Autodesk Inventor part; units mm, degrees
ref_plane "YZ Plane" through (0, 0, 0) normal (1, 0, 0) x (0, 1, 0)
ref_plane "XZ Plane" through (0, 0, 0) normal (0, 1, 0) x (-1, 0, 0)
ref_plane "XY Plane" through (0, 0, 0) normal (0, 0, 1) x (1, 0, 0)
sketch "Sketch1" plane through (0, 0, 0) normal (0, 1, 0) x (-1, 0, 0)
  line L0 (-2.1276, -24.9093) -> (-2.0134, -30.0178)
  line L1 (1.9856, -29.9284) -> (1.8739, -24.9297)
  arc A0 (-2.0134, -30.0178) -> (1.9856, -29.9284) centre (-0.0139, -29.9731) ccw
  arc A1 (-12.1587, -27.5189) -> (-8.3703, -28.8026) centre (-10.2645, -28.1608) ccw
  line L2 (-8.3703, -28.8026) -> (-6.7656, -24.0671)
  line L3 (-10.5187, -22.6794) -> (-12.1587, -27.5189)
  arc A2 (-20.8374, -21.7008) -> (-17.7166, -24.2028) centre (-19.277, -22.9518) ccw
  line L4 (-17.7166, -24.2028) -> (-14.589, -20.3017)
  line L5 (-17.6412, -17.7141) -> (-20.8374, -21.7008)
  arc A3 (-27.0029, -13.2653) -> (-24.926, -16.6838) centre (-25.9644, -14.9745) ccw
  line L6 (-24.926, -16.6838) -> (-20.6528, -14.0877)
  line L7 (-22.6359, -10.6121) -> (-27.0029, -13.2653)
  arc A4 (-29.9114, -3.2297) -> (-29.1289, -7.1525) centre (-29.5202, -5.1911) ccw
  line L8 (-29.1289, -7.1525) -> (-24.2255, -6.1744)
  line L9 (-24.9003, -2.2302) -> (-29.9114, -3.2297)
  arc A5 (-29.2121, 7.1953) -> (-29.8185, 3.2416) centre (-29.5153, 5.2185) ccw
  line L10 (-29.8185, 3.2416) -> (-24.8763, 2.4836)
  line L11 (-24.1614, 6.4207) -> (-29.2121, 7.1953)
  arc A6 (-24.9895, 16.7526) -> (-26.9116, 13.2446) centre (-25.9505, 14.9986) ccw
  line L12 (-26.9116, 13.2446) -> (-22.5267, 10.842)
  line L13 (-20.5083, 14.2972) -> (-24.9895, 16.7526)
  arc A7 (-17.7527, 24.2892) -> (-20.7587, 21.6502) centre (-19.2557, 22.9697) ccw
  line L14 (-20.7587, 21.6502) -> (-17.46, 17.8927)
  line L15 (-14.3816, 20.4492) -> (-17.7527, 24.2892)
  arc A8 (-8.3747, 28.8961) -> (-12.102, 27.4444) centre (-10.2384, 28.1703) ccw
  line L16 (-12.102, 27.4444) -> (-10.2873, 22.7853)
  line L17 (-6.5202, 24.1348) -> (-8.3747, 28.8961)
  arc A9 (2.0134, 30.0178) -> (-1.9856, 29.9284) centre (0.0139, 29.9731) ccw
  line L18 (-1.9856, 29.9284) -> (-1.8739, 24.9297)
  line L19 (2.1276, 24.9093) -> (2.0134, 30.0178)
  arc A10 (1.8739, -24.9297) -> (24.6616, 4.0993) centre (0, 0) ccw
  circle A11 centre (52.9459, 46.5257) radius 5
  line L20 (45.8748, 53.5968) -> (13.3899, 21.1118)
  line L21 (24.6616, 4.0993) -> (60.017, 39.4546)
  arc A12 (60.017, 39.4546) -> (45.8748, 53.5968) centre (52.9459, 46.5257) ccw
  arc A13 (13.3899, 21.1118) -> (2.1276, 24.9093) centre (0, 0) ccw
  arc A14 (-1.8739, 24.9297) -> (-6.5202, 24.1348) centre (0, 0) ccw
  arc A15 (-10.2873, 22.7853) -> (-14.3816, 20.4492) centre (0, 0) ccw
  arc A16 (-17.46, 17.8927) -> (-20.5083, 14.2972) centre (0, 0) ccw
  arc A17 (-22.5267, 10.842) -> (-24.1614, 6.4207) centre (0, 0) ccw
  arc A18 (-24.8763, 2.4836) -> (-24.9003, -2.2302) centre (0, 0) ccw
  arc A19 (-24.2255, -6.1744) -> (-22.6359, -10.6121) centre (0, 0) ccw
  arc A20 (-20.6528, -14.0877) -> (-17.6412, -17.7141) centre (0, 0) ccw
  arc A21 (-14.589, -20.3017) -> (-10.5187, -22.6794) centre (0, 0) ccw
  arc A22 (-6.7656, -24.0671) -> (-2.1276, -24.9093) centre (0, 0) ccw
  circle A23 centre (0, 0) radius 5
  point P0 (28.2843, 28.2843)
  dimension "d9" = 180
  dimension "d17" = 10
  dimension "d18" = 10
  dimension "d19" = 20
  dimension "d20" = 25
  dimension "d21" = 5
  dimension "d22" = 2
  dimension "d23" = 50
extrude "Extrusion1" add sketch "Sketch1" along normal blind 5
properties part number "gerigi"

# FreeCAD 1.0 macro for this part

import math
import FreeCAD as App
import Part
import Sketcher
from FreeCAD import Vector
Q = App.Units.Quantity

doc = App.newDocument("Part")
body = doc.addObject("PartDesign::Body", "Body")

sketch1 = body.newObject("Sketcher::SketchObject", "Sketch")
sketch1.AttachmentSupport = (doc.getObject("XZ_Plane"), [""])
sketch1.MapMode = "FlatFace"
sketch1.addGeometry([
    Part.ArcOfCircle(Part.Circle(Vector(-0.000638, 0.002765, 0), Vector(0, 0, 1), 25.002808), math.radians(-85.117076), math.radians(-74.298888)),
    Part.LineSegment(Vector(2.1276, -24.9093, 0), Vector(2.0134, -30.0178, 0)),
    Part.ArcOfCircle(Part.Circle(Vector(0.0139, -29.9731, 0), Vector(0, 0, 1), 2), math.radians(178.719332), math.radians(358.719332)),
    Part.LineSegment(Vector(-1.9856, -29.9284, 0), Vector(-1.8739, -24.9297, 0)),
    Part.ArcOfCircle(Part.Circle(Vector(0, 0, 0), Vector(0, 0, 1), 24.99995), math.radians(170.56247), math.radians(265.701311)),
    Part.LineSegment(Vector(-24.6616, 4.0993, 0), Vector(-60.017, 39.4546, 0)),
    Part.ArcOfCircle(Part.Circle(Vector(-52.9459, 46.5257, 0), Vector(0, 0, 1), 10.000046), math.radians(45), math.radians(225)),
    Part.LineSegment(Vector(-45.8748, 53.5968, 0), Vector(-13.3899, 21.1118, 0)),
    Part.ArcOfCircle(Part.Circle(Vector(0, 0, 0), Vector(0, 0, 1), 25.000029), math.radians(94.882006), math.radians(122.384412)),
    Part.LineSegment(Vector(-2.1276, 24.9093, 0), Vector(-2.0134, 30.0178, 0)),
    Part.ArcOfCircle(Part.Circle(Vector(-0.0139, 29.9731, 0), Vector(0, 0, 1), 2), math.radians(-1.280668), math.radians(178.719332)),
    Part.LineSegment(Vector(1.9856, 29.9284, 0), Vector(1.8739, 24.9297, 0)),
    Part.ArcOfCircle(Part.Circle(Vector(0, 0, 0), Vector(0, 0, 1), 25.000029), math.radians(74.882008), math.radians(85.701311)),
    Part.LineSegment(Vector(6.5202, 24.1348, 0), Vector(8.3747, 28.8961, 0)),
    Part.ArcOfCircle(Part.Circle(Vector(10.2384, 28.1703, 0), Vector(0, 0, 1), 2.000041), math.radians(-21.281656), math.radians(158.722053)),
    Part.LineSegment(Vector(12.102, 27.4444, 0), Vector(10.2873, 22.7853, 0)),
    Part.ArcOfCircle(Part.Circle(Vector(-0.001798, -0.003529, 0), Vector(0, 0, 1), 25.003925), math.radians(54.883165), math.radians(65.700945)),
    Part.LineSegment(Vector(14.3816, 20.4492, 0), Vector(17.7527, 24.2892, 0)),
    Part.ArcOfCircle(Part.Circle(Vector(19.2557, 22.9697, 0), Vector(0, 0, 1), 2.000022), math.radians(-41.280248), math.radians(138.719752)),
    Part.LineSegment(Vector(20.7587, 21.6502, 0), Vector(17.46, 17.8927, 0)),
    Part.ArcOfCircle(Part.Circle(Vector(0, 0, 0), Vector(0, 0, 1), 24.999969), math.radians(34.881977), math.radians(45.701238)),
    Part.LineSegment(Vector(20.5083, 14.2972, 0), Vector(24.9895, 16.7526, 0)),
    Part.ArcOfCircle(Part.Circle(Vector(25.9505, 14.9986, 0), Vector(0, 0, 1), 2.000009), math.radians(-61.27957), math.radians(118.717918)),
    Part.LineSegment(Vector(26.9116, 13.2446, 0), Vector(22.5267, 10.842, 0)),
    Part.ArcOfCircle(Part.Circle(Vector(0.005251, 0.002229, 0), Vector(0, 0, 1), 24.994326), math.radians(14.880101), math.radians(25.701921)),
    Part.LineSegment(Vector(24.1614, 6.4207, 0), Vector(29.2121, 7.1953, 0)),
    Part.ArcOfCircle(Part.Circle(Vector(29.5153, 5.2185, 0), Vector(0, 0, 1), 1.999917), math.radians(-81.28041), math.radians(98.720024)),
    Part.LineSegment(Vector(29.8185, 3.2416, 0), Vector(24.8763, 2.4836, 0)),
    Part.ArcOfCircle(Part.Circle(Vector(0, 0, 0), Vector(0, 0, 1), 25.000029), math.radians(-5.118051), math.radians(5.701403)),
    Part.LineSegment(Vector(24.9003, -2.2302, 0), Vector(29.9114, -3.2297, 0)),
    Part.ArcOfCircle(Part.Circle(Vector(29.5202, -5.1911, 0), Vector(0, 0, 1), 2.000032), math.radians(-101.282403), math.radians(78.720406)),
    Part.LineSegment(Vector(29.1289, -7.1525, 0), Vector(24.2255, -6.1744, 0)),
    Part.ArcOfCircle(Part.Circle(Vector(-0.005525, 0.001689, 0), Vector(0, 0, 1), 25.005732), math.radians(-25.116125), math.radians(-14.299287)),
    Part.LineSegment(Vector(22.6359, -10.6121, 0), Vector(27.0029, -13.2653, 0)),
    Part.ArcOfCircle(Part.Circle(Vector(25.9644, -14.9745, 0), Vector(0, 0, 1), 1.999962), math.radians(-121.278687), math.radians(58.717377)),
    Part.LineSegment(Vector(24.926, -16.6838, 0), Vector(20.6528, -14.0877, 0)),
    Part.ArcOfCircle(Part.Circle(Vector(0, 0, 0), Vector(0, 0, 1), 24.99995), math.radians(-45.118139), math.radians(-34.298703)),
    Part.LineSegment(Vector(17.6412, -17.7141, 0), Vector(20.8374, -21.7008, 0)),
    Part.ArcOfCircle(Part.Circle(Vector(19.277, -22.9518, 0), Vector(0, 0, 1), 1.999962), math.radians(-141.280238), math.radians(38.719762)),
    Part.LineSegment(Vector(17.7166, -24.2028, 0), Vector(14.589, -20.3017, 0)),
    Part.ArcOfCircle(Part.Circle(Vector(0, 0, 0), Vector(0, 0, 1), 25.000029), math.radians(-65.118142), math.radians(-54.298607)),
    Part.LineSegment(Vector(10.5187, -22.6794, 0), Vector(12.1587, -27.5189, 0)),
    Part.ArcOfCircle(Part.Circle(Vector(10.2645, -28.1608, 0), Vector(0, 0, 1), 2.000007), math.radians(-161.282398), math.radians(18.720316)),
    Part.LineSegment(Vector(8.3703, -28.8026, 0), Vector(6.7656, -24.0671, 0)),
    Part.Circle(Vector(0, 0, 0), Vector(0, 0, 1), 5),
    Part.Circle(Vector(-52.9459, 46.5257, 0), Vector(0, 0, 1), 5),
], False)
sketch1.addConstraint([
    Sketcher.Constraint("Coincident", 0, 1, 1, 1),
    Sketcher.Constraint("Tangent", 1, 2, 2, 2),
    Sketcher.Constraint("Tangent", 2, 1, 3, 1),
    Sketcher.Constraint("Coincident", 3, 2, 4, 2),
    Sketcher.Constraint("Coincident", 4, 1, 5, 1),
    Sketcher.Constraint("Tangent", 5, 2, 6, 2),
    Sketcher.Constraint("Tangent", 6, 1, 7, 1),
    Sketcher.Constraint("Coincident", 7, 2, 8, 2),
    Sketcher.Constraint("Coincident", 8, 1, 9, 1),
    Sketcher.Constraint("Tangent", 9, 2, 10, 2),
    Sketcher.Constraint("Tangent", 10, 1, 11, 1),
    Sketcher.Constraint("Coincident", 11, 2, 12, 2),
    Sketcher.Constraint("Coincident", 12, 1, 13, 1),
    Sketcher.Constraint("Tangent", 13, 2, 14, 2),
    Sketcher.Constraint("Tangent", 14, 1, 15, 1),
    Sketcher.Constraint("Coincident", 15, 2, 16, 2),
    Sketcher.Constraint("Coincident", 16, 1, 17, 1),
    Sketcher.Constraint("Tangent", 17, 2, 18, 2),
    Sketcher.Constraint("Tangent", 18, 1, 19, 1),
    Sketcher.Constraint("Coincident", 19, 2, 20, 2),
    Sketcher.Constraint("Coincident", 20, 1, 21, 1),
    Sketcher.Constraint("Tangent", 21, 2, 22, 2),
    Sketcher.Constraint("Tangent", 22, 1, 23, 1),
    Sketcher.Constraint("Coincident", 23, 2, 24, 2),
    Sketcher.Constraint("Coincident", 24, 1, 25, 1),
    Sketcher.Constraint("Tangent", 25, 2, 26, 2),
    Sketcher.Constraint("Tangent", 26, 1, 27, 1),
    Sketcher.Constraint("Coincident", 27, 2, 28, 2),
    Sketcher.Constraint("Coincident", 28, 1, 29, 1),
    Sketcher.Constraint("Tangent", 29, 2, 30, 2),
    Sketcher.Constraint("Tangent", 30, 1, 31, 1),
    Sketcher.Constraint("Coincident", 31, 2, 32, 2),
    Sketcher.Constraint("Coincident", 32, 1, 33, 1),
    Sketcher.Constraint("Tangent", 33, 2, 34, 2),
    Sketcher.Constraint("Tangent", 34, 1, 35, 1),
    Sketcher.Constraint("Coincident", 35, 2, 36, 2),
    Sketcher.Constraint("Coincident", 36, 1, 37, 1),
    Sketcher.Constraint("Tangent", 37, 2, 38, 2),
    Sketcher.Constraint("Tangent", 38, 1, 39, 1),
    Sketcher.Constraint("Coincident", 39, 2, 40, 2),
    Sketcher.Constraint("Coincident", 40, 1, 41, 1),
    Sketcher.Constraint("Tangent", 41, 2, 42, 2),
    Sketcher.Constraint("Tangent", 42, 1, 43, 1),
    Sketcher.Constraint("Coincident", 43, 2, 0, 2),
    Sketcher.Constraint("Coincident", 4, 3, -1, 1),
    Sketcher.Constraint("Coincident", 8, 3, -1, 1),
    Sketcher.Constraint("Coincident", 12, 3, -1, 1),
    Sketcher.Constraint("Coincident", 20, 3, -1, 1),
    Sketcher.Constraint("Coincident", 28, 3, -1, 1),
    Sketcher.Constraint("Coincident", 36, 3, -1, 1),
    Sketcher.Constraint("Coincident", 40, 3, -1, 1),
    Sketcher.Constraint("Coincident", 44, 3, -1, 1),
    Sketcher.Constraint("Coincident", 45, 3, 6, 3),
    Sketcher.Constraint("Equal", 4, 8),
    Sketcher.Constraint("Equal", 2, 10),
    Sketcher.Constraint("Equal", 8, 12),
    Sketcher.Constraint("Equal", 10, 14),
    Sketcher.Constraint("Equal", 14, 18),
    Sketcher.Constraint("Equal", 12, 20),
    Sketcher.Constraint("Equal", 18, 22),
    Sketcher.Constraint("Equal", 22, 26),
    Sketcher.Constraint("Equal", 20, 28),
    Sketcher.Constraint("Equal", 26, 30),
    Sketcher.Constraint("Equal", 30, 34),
    Sketcher.Constraint("Equal", 28, 36),
    Sketcher.Constraint("Equal", 34, 38),
    Sketcher.Constraint("Equal", 36, 40),
    Sketcher.Constraint("Equal", 38, 42),
    Sketcher.Constraint("Equal", 44, 45),
    Sketcher.Constraint("Symmetric", 2, 3, 10, 3, -1, 1),
    Sketcher.Constraint("Symmetric", 0, 1, 8, 1, -1, 1),
    Sketcher.Constraint("Parallel", 1, 3),
    Sketcher.Constraint("Parallel", 5, 7),
    Sketcher.Constraint("Parallel", 9, 11),
    Sketcher.Constraint("Parallel", 13, 15),
    Sketcher.Constraint("Parallel", 17, 19),
    Sketcher.Constraint("Parallel", 21, 23),
    Sketcher.Constraint("Parallel", 25, 27),
    Sketcher.Constraint("Parallel", 29, 31),
    Sketcher.Constraint("Parallel", 33, 35),
    Sketcher.Constraint("Parallel", 37, 39),
    Sketcher.Constraint("Parallel", 41, 43),
    Sketcher.Constraint("Equal", 9, 13),
    Sketcher.Constraint("Equal", 11, 15),
    Sketcher.Constraint("Equal", 13, 17),
    Sketcher.Constraint("Equal", 15, 19),
    Sketcher.Constraint("Equal", 17, 21),
    Sketcher.Constraint("Equal", 19, 23),
    Sketcher.Constraint("Equal", 21, 25),
    Sketcher.Constraint("Equal", 23, 27),
    Sketcher.Constraint("Equal", 25, 29),
    Sketcher.Constraint("Equal", 27, 31),
    Sketcher.Constraint("Equal", 29, 33),
    Sketcher.Constraint("Equal", 31, 35),
    Sketcher.Constraint("Equal", 33, 37),
    Sketcher.Constraint("Equal", 35, 39),
    Sketcher.Constraint("Equal", 37, 41),
    Sketcher.Constraint("Equal", 39, 43),
    Sketcher.Constraint("Diameter", 44, Q("10 mm")),
    Sketcher.Constraint("Radius", 2, Q("2 mm")),
    Sketcher.Constraint("Radius", 4, Q("25 mm")),
    Sketcher.Constraint("Radius", 6, Q("10 mm")),
    Sketcher.Constraint("Distance", 3, Q("5 mm")),
    Sketcher.Constraint("Distance", 5, Q("50 mm")),
    Sketcher.Constraint("Angle", 5, Q("135 deg")),
    Sketcher.Constraint("Radius", 16, Q("25.004 mm")),
    Sketcher.Constraint("Angle", 1, Q("-91.2806 deg")),
    Sketcher.Constraint("Angle", 13, Q("68.7194 deg")),
    Sketcher.Constraint("Angle", 17, Q("48.7204 deg")),
    Sketcher.Constraint("Angle", 21, Q("28.7198 deg")),
    Sketcher.Constraint("Angle", 25, Q("8.7192 deg")),
    Sketcher.Constraint("Angle", 29, Q("-11.28 deg")),
    Sketcher.Constraint("Angle", 33, Q("-31.281 deg")),
    Sketcher.Constraint("Angle", 37, Q("-51.2803 deg")),
    Sketcher.Constraint("Angle", 41, Q("-71.2796 deg")),
    Sketcher.Constraint("Radius", 0, Q("25.0028 mm")),
    Sketcher.Constraint("Radius", 24, Q("24.9943 mm")),
    Sketcher.Constraint("Radius", 32, Q("25.0057 mm")),
    Sketcher.Constraint("DistanceX", 7, 2, -1, 1, Q("13.39 mm")),
    Sketcher.Constraint("DistanceX", -1, 1, 19, 2, Q("17.46 mm")),
    Sketcher.Constraint("DistanceX", -1, 1, 2, 3, Q("0.014 mm")),
    Sketcher.Constraint("DistanceY", 30, 3, -1, 1, Q("5.191 mm")),
    Sketcher.Constraint("DistanceY", -1, 1, 13, 2, Q("28.896 mm")),
    Sketcher.Constraint("DistanceY", -1, 1, 23, 2, Q("10.842 mm")),
    Sketcher.Constraint("DistanceX", -1, 1, 25, 2, Q("29.212 mm")),
    Sketcher.Constraint("DistanceX", -1, 1, 32, 1, Q("22.636 mm")),
    Sketcher.Constraint("DistanceY", 41, 2, -1, 1, Q("27.519 mm")),
])
pad1 = body.newObject("PartDesign::Pad", "Pad")
pad1.Profile = sketch1
pad1.Length = 5
pad1.Reversed = True

doc.recompute()
